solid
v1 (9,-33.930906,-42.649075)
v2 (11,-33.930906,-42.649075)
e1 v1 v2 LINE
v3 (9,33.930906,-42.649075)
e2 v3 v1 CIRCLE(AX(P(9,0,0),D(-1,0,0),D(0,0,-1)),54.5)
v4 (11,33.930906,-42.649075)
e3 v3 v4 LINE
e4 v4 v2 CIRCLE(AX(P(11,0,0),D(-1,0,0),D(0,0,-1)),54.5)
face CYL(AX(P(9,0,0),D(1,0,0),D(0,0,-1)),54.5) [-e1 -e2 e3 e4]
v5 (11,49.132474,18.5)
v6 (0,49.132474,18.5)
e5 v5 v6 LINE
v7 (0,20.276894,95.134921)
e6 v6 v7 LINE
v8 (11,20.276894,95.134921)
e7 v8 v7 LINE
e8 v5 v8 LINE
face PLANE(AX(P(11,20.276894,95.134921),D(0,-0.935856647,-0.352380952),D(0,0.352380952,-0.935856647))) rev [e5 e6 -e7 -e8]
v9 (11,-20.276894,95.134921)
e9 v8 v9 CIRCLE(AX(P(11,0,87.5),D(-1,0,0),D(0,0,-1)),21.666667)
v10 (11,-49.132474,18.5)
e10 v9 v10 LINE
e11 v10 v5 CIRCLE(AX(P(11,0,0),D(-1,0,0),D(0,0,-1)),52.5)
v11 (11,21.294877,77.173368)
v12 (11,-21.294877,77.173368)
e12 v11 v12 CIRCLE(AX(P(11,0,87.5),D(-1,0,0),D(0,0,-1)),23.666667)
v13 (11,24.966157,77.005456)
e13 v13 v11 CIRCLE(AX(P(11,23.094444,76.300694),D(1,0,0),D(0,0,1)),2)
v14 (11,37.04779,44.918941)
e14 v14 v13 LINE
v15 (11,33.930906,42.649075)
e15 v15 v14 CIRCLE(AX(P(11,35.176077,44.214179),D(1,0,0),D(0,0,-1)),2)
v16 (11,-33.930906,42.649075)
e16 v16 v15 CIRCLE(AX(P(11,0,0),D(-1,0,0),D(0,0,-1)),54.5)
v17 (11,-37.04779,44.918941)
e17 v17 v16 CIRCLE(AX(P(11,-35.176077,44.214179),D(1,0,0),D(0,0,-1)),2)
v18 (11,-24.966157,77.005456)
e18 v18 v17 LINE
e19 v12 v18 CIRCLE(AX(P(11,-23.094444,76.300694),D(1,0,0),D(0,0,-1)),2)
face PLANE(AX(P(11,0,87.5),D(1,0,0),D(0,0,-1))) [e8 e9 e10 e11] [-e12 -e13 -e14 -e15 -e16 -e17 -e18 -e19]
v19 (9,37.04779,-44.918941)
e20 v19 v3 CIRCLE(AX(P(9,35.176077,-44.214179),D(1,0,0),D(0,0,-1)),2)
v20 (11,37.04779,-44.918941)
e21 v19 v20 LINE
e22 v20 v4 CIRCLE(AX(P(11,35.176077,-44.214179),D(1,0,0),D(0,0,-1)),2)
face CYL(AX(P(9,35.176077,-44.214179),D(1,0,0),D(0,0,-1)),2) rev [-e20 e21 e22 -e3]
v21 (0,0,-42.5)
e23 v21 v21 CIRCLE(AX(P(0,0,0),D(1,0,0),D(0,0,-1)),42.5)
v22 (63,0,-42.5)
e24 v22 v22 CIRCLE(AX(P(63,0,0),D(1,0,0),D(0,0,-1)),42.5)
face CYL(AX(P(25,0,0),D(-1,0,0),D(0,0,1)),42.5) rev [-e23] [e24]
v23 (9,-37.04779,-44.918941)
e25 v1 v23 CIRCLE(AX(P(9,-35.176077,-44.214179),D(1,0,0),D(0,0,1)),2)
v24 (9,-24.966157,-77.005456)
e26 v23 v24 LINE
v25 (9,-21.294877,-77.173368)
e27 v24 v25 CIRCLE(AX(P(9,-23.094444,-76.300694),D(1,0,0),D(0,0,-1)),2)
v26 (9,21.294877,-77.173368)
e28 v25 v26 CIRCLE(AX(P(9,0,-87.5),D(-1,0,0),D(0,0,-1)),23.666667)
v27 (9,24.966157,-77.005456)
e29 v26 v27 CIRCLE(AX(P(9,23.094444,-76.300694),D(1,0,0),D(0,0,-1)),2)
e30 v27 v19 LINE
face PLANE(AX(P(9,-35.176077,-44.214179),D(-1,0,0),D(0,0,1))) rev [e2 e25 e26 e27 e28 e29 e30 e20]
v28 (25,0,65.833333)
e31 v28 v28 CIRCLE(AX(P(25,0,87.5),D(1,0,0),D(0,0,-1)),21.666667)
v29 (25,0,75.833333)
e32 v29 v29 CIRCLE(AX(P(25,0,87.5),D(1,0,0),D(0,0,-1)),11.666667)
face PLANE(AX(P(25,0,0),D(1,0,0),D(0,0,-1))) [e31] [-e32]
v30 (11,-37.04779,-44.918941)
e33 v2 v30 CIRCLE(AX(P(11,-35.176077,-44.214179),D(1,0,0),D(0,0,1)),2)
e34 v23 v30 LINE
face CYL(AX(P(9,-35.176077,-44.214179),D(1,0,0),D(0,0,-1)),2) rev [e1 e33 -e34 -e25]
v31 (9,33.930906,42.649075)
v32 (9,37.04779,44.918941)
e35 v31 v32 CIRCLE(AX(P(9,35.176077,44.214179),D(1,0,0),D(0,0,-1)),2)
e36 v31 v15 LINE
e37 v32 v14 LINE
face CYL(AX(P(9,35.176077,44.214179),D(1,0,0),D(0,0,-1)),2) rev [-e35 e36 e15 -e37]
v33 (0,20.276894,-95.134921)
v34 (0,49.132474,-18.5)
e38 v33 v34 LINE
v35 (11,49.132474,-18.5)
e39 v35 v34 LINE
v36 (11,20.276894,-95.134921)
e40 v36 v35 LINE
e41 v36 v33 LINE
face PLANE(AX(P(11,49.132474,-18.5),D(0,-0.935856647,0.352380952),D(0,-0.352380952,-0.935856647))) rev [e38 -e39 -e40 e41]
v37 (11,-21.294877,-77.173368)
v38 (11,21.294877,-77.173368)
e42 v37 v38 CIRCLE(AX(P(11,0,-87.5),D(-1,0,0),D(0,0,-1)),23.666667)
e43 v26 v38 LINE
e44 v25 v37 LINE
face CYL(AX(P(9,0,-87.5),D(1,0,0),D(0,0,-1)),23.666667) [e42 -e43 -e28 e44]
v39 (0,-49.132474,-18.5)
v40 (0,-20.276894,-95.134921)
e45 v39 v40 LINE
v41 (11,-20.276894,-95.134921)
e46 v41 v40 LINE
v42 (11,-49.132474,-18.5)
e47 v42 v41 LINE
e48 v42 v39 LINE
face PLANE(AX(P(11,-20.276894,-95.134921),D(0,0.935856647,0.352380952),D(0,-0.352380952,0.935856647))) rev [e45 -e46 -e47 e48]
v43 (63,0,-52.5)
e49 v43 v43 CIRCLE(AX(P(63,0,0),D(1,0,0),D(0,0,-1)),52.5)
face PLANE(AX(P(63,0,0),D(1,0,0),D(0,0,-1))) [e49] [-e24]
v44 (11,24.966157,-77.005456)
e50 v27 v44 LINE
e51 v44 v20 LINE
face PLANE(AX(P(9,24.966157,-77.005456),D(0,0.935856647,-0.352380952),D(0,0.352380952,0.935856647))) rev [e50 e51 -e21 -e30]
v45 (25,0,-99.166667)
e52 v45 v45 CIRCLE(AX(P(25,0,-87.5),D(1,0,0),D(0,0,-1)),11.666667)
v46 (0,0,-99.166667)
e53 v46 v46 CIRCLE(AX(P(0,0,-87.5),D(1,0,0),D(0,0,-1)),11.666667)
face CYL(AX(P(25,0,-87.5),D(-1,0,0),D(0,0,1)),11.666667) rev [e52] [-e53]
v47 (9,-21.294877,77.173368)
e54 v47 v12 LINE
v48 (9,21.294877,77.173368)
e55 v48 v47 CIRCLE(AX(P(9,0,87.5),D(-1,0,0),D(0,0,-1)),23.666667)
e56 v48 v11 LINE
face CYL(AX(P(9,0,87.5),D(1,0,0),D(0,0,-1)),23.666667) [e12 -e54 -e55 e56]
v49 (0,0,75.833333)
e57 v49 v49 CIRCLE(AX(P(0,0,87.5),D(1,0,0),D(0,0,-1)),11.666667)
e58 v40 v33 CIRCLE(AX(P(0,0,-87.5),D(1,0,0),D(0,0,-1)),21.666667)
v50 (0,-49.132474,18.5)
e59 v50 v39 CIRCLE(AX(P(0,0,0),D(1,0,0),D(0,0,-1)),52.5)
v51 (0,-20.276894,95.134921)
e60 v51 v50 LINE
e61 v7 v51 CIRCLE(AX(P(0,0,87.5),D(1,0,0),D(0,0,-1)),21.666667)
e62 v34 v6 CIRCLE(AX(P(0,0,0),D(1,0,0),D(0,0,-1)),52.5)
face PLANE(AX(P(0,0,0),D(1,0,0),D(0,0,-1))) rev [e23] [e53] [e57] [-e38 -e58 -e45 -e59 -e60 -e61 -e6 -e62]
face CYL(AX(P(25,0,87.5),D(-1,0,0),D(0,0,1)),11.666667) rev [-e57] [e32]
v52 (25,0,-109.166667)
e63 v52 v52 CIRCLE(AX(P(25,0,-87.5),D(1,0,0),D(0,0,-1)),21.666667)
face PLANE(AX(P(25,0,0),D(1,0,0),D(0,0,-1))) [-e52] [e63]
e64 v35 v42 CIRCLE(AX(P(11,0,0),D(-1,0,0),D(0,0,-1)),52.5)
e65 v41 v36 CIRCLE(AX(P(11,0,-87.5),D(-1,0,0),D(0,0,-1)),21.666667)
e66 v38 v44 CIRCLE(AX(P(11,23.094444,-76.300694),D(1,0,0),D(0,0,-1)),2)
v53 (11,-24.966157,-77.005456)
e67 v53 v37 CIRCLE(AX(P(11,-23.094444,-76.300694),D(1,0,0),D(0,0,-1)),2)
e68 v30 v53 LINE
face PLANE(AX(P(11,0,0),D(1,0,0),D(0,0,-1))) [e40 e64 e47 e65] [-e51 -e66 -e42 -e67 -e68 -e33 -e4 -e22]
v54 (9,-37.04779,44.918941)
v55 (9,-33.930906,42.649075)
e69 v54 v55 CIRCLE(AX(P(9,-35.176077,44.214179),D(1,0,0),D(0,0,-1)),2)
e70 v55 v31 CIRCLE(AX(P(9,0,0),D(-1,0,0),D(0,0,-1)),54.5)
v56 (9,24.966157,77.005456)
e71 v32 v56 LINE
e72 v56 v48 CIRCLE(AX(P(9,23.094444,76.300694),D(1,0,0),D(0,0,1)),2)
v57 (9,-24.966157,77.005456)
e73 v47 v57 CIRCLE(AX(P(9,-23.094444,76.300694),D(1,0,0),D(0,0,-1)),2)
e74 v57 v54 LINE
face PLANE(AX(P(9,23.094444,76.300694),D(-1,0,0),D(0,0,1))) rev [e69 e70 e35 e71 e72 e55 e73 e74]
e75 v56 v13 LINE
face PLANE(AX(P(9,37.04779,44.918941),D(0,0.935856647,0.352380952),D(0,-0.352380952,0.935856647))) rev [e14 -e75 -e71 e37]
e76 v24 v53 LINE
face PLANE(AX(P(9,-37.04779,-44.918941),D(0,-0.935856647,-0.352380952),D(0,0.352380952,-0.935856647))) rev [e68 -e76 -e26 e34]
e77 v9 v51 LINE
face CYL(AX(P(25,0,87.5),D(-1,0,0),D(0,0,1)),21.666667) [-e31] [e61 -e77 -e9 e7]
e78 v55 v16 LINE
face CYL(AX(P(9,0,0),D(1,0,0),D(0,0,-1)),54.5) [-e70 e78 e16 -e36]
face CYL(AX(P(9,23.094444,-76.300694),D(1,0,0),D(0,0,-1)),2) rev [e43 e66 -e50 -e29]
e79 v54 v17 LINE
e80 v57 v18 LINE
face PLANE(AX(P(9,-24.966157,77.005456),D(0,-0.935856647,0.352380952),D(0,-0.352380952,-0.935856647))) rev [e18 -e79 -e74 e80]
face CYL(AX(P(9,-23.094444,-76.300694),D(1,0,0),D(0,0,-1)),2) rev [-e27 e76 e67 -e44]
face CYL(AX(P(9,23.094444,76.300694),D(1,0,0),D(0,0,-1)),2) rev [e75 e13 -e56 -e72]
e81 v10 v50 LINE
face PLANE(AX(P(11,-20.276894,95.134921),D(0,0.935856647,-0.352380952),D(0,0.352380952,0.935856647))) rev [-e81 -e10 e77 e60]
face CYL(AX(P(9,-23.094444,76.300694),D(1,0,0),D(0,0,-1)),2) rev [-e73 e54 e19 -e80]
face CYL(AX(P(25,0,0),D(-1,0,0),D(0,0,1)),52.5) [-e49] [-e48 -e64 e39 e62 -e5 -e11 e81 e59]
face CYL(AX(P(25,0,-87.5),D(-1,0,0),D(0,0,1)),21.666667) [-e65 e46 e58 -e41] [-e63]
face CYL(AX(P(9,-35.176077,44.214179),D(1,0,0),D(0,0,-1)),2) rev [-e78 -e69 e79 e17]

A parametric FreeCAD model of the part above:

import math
import FreeCAD as App
import Part
import Sketcher
from FreeCAD import Vector

doc = App.newDocument("Part")
body = doc.addObject("PartDesign::Body", "Body")

sketch1 = body.newObject("Sketcher::SketchObject", "Sketch")
sketch1.AttachmentSupport = (doc.getObject("YZ_Plane"), [""])
sketch1.MapMode = "FlatFace"
sketch1.addGeometry(Part.Circle(Vector(0, 0, 0), Vector(0, 0, 1), 52), False)
sketch1.addGeometry(Part.Circle(Vector(0, 0, 0), Vector(0, 0, 1), 42), False)
sketch1.addConstraint(Sketcher.Constraint("Coincident", 0, 3, -1, 1))
sketch1.addConstraint(Sketcher.Constraint("Coincident", 1, 3, -1, 1))
sketch1.addConstraint(Sketcher.Constraint("Diameter", 0, 105.0))
sketch1.addConstraint(Sketcher.Constraint("Diameter", 1, 85.0))
pad1 = body.newObject("PartDesign::Pad", "Pad")
pad1.Profile = sketch1
pad1.Length = 25

sketch2 = body.newObject("Sketcher::SketchObject", "Sketch001")
sketch2.AttachmentSupport = (doc.getObject("YZ_Plane"), [""])
sketch2.MapMode = "FlatFace"
sketch2.AttachmentOffset = App.Placement(Vector(0, 0, 25), App.Rotation())
sketch2.addGeometry(Part.Circle(Vector(0, 0, 0), Vector(0, 0, 1), 52), False)
sketch2.addGeometry(Part.Circle(Vector(0, 0, 0), Vector(0, 0, 1), 42), False)
sketch2.addConstraint(Sketcher.Constraint("Coincident", 0, 3, -1, 1))
sketch2.addConstraint(Sketcher.Constraint("Coincident", 1, 3, -1, 1))
sketch2.addConstraint(Sketcher.Constraint("Diameter", 0, 105.0))
sketch2.addConstraint(Sketcher.Constraint("Diameter", 1, 85.0))
pad2 = body.newObject("PartDesign::Pad", "Pad001")
pad2.Profile = sketch2
pad2.Length = 38
body2 = doc.addObject("PartDesign::Body", "Body001")

sketch3 = body2.newObject("Sketcher::SketchObject", "Sketch002")
sketch3.AttachmentSupport = (doc.getObject("YZ_Plane001"), [""])
sketch3.MapMode = "FlatFace"
sketch3.addGeometry(Part.Circle(Vector(0, -88, 0), Vector(0, 0, 1), 22), False)
sketch3.addGeometry(Part.Circle(Vector(0, -88, 0), Vector(0, 0, 1), 12), False)
sketch3.addConstraint(Sketcher.Constraint("Coincident", 1, 3, 0, 3))
sketch3.addConstraint(Sketcher.Constraint("PointOnObject", 0, 3, -2))
sketch3.addConstraint(Sketcher.Constraint("DistanceY", 0, 3, -1, 1, 87.5))
sketch3.addConstraint(Sketcher.Constraint("Diameter", 0, 43.333333))
sketch3.addConstraint(Sketcher.Constraint("Diameter", 1, 23.333333))
pad3 = body2.newObject("PartDesign::Pad", "Pad002")
pad3.Profile = sketch3
pad3.Length = 25
body3 = doc.addObject("PartDesign::Body", "Body002")

sketch4 = body3.newObject("Sketcher::SketchObject", "Sketch003")
sketch4.AttachmentSupport = (doc.getObject("YZ_Plane002"), [""])
sketch4.MapMode = "FlatFace"
sketch4.addGeometry(Part.Circle(Vector(0, 88, 0), Vector(0, 0, 1), 22), False)
sketch4.addGeometry(Part.Circle(Vector(0, 88, 0), Vector(0, 0, 1), 12), False)
sketch4.addConstraint(Sketcher.Constraint("Coincident", 1, 3, 0, 3))
sketch4.addConstraint(Sketcher.Constraint("PointOnObject", 0, 3, -2))
sketch4.addConstraint(Sketcher.Constraint("DistanceY", -1, 1, 0, 3, 87.5))
sketch4.addConstraint(Sketcher.Constraint("Diameter", 0, 43.333333))
sketch4.addConstraint(Sketcher.Constraint("Diameter", 1, 23.333333))
pad4 = body3.newObject("PartDesign::Pad", "Pad003")
pad4.Profile = sketch4
pad4.Length = 25
body.AllowCompound = True
doc.recompute()

boolean = body.newObject("PartDesign::Boolean", "Boolean")
boolean.Type = "Fuse"
boolean.addObjects([body2])
doc.recompute()

boolean2 = body.newObject("PartDesign::Boolean", "Boolean001")
boolean2.Type = "Fuse"
boolean2.addObjects([body3])

sketch5 = body.newObject("Sketcher::SketchObject", "Sketch004")
sketch5.AttachmentSupport = (doc.getObject("YZ_Plane"), [""])
sketch5.MapMode = "FlatFace"
sketch5.addGeometry(Part.LineSegment(Vector(20, -95, 0), Vector(49, -18, 0)), False)
sketch5.addGeometry(Part.ArcOfCircle(Part.Circle(Vector(0, 0, 0), Vector(0, 0, 1), 52), math.radians(-159), math.radians(-21)), False)
sketch5.addGeometry(Part.LineSegment(Vector(-49, -18, 0), Vector(-20, -95, 0)), False)
sketch5.addGeometry(Part.ArcOfCircle(Part.Circle(Vector(0, -88, 0), Vector(0, 0, 1), 22), math.radians(-21), math.radians(201)), False)
sketch5.addGeometry(Part.LineSegment(Vector(-20, 95, 0), Vector(-49, 18, 0)), False)
sketch5.addGeometry(Part.ArcOfCircle(Part.Circle(Vector(0, 0, 0), Vector(0, 0, 1), 52), math.radians(21), math.radians(159)), False)
sketch5.addGeometry(Part.LineSegment(Vector(49, 18, 0), Vector(20, 95, 0)), False)
sketch5.addGeometry(Part.ArcOfCircle(Part.Circle(Vector(0, 88, 0), Vector(0, 0, 1), 22), math.radians(159), math.radians(381)), False)
sketch5.addConstraint(Sketcher.Constraint("Tangent", 0, 2, 1, 2))
sketch5.addConstraint(Sketcher.Constraint("Tangent", 1, 1, 2, 1))
sketch5.addConstraint(Sketcher.Constraint("Tangent", 2, 2, 3, 2))
sketch5.addConstraint(Sketcher.Constraint("Tangent", 3, 1, 0, 1))
sketch5.addConstraint(Sketcher.Constraint("Tangent", 4, 2, 5, 2))
sketch5.addConstraint(Sketcher.Constraint("Tangent", 5, 1, 6, 1))
sketch5.addConstraint(Sketcher.Constraint("Tangent", 6, 2, 7, 2))
sketch5.addConstraint(Sketcher.Constraint("Tangent", 7, 1, 4, 1))
sketch5.addConstraint(Sketcher.Constraint("Coincident", 1, 3, -1, 1))
sketch5.addConstraint(Sketcher.Constraint("Coincident", 5, 3, -1, 1))
sketch5.addConstraint(Sketcher.Constraint("Equal", 1, 5))
sketch5.addConstraint(Sketcher.Constraint("Equal", 3, 7))
sketch5.addConstraint(Sketcher.Constraint("Symmetric", 3, 3, 7, 3, -1, 1))
sketch5.addConstraint(Sketcher.Constraint("PointOnObject", 3, 3, -2))
sketch5.addConstraint(Sketcher.Constraint("Radius", 1, 52.5))
sketch5.addConstraint(Sketcher.Constraint("DistanceY", 3, 3, 7, 3, 175.0))
sketch5.addConstraint(Sketcher.Constraint("DistanceY", 3, 3, 0, 2, 69.0))
pad5 = body.newObject("PartDesign::Pad", "Pad004")
pad5.Profile = sketch5
pad5.Length = 11

sketch6 = body.newObject("Sketcher::SketchObject", "Sketch005")
sketch6.AttachmentSupport = (doc.getObject("YZ_Plane"), [""])
sketch6.MapMode = "FlatFace"
sketch6.AttachmentOffset = App.Placement(Vector(0, 0, 11), App.Rotation())
sketch6.addGeometry(Part.LineSegment(Vector(-25, 77, 0), Vector(-37, 44.9, 0)), False)
sketch6.addGeometry(Part.ArcOfCircle(Part.Circle(Vector(-35.2, 44.2, 0), Vector(0, 0, 1), 2), math.radians(159), math.radians(309)), False)
sketch6.addGeometry(Part.ArcOfCircle(Part.Circle(Vector(0, 0, 0), Vector(0, 0, 1), 54.5), math.radians(51), math.radians(129)), False)
sketch6.addGeometry(Part.ArcOfCircle(Part.Circle(Vector(35.2, 44.2, 0), Vector(0, 0, 1), 2), math.radians(-129), math.radians(21)), False)
sketch6.addGeometry(Part.LineSegment(Vector(37, 44.9, 0), Vector(25, 77, 0)), False)
sketch6.addGeometry(Part.ArcOfCircle(Part.Circle(Vector(23.1, 76.3, 0), Vector(0, 0, 1), 2), math.radians(21), math.radians(154)), False)
sketch6.addGeometry(Part.ArcOfCircle(Part.Circle(Vector(0, 87.5, 0), Vector(0, 0, 1), 23.7), math.radians(-154), math.radians(-26)), False)
sketch6.addGeometry(Part.ArcOfCircle(Part.Circle(Vector(-23.1, 76.3, 0), Vector(0, 0, 1), 2), math.radians(26), math.radians(159)), False)
sketch6.addGeometry(Part.LineSegment(Vector(25, -77, 0), Vector(37, -44.9, 0)), False)
sketch6.addGeometry(Part.ArcOfCircle(Part.Circle(Vector(35.2, -44.2, 0), Vector(0, 0, 1), 2), math.radians(-21), math.radians(129)), False)
sketch6.addGeometry(Part.ArcOfCircle(Part.Circle(Vector(0, 0, 0), Vector(0, 0, 1), 54.5), math.radians(-129), math.radians(-51)), False)
sketch6.addGeometry(Part.ArcOfCircle(Part.Circle(Vector(-35.2, -44.2, 0), Vector(0, 0, 1), 2), math.radians(51), math.radians(201)), False)
sketch6.addGeometry(Part.LineSegment(Vector(-37, -44.9, 0), Vector(-25, -77, 0)), False)
sketch6.addGeometry(Part.ArcOfCircle(Part.Circle(Vector(-23.1, -76.3, 0), Vector(0, 0, 1), 2), math.radians(-159), math.radians(-26)), False)
sketch6.addGeometry(Part.ArcOfCircle(Part.Circle(Vector(0, -87.5, 0), Vector(0, 0, 1), 23.7), math.radians(26), math.radians(154)), False)
sketch6.addGeometry(Part.ArcOfCircle(Part.Circle(Vector(23.1, -76.3, 0), Vector(0, 0, 1), 2), math.radians(-154), math.radians(-21)), False)
sketch6.addConstraint(Sketcher.Constraint("Tangent", 0, 2, 1, 1))
sketch6.addConstraint(Sketcher.Constraint("Tangent", 1, 2, 2, 2))
sketch6.addConstraint(Sketcher.Constraint("Tangent", 2, 1, 3, 1))
sketch6.addConstraint(Sketcher.Constraint("Tangent", 3, 2, 4, 1))
sketch6.addConstraint(Sketcher.Constraint("Tangent", 4, 2, 5, 1))
sketch6.addConstraint(Sketcher.Constraint("Tangent", 5, 2, 6, 2))
sketch6.addConstraint(Sketcher.Constraint("Tangent", 6, 1, 7, 1))
sketch6.addConstraint(Sketcher.Constraint("Tangent", 7, 2, 0, 1))
sketch6.addConstraint(Sketcher.Constraint("Tangent", 8, 2, 9, 1))
sketch6.addConstraint(Sketcher.Constraint("Tangent", 9, 2, 10, 2))
sketch6.addConstraint(Sketcher.Constraint("Tangent", 10, 1, 11, 1))
sketch6.addConstraint(Sketcher.Constraint("Tangent", 11, 2, 12, 1))
sketch6.addConstraint(Sketcher.Constraint("Tangent", 12, 2, 13, 1))
sketch6.addConstraint(Sketcher.Constraint("Tangent", 13, 2, 14, 2))
sketch6.addConstraint(Sketcher.Constraint("Tangent", 14, 1, 15, 1))
sketch6.addConstraint(Sketcher.Constraint("Tangent", 15, 2, 8, 1))
sketch6.addConstraint(Sketcher.Constraint("Coincident", 2, 3, -1, 1))
sketch6.addConstraint(Sketcher.Constraint("Coincident", 10, 3, -1, 1))
sketch6.addConstraint(Sketcher.Constraint("Equal", 1, 3))
sketch6.addConstraint(Sketcher.Constraint("Equal", 3, 5))
sketch6.addConstraint(Sketcher.Constraint("Equal", 5, 7))
sketch6.addConstraint(Sketcher.Constraint("Equal", 7, 9))
sketch6.addConstraint(Sketcher.Constraint("Equal", 2, 10))
sketch6.addConstraint(Sketcher.Constraint("Equal", 9, 11))
sketch6.addConstraint(Sketcher.Constraint("Equal", 11, 13))
sketch6.addConstraint(Sketcher.Constraint("Equal", 6, 14))
sketch6.addConstraint(Sketcher.Constraint("Equal", 13, 15))
sketch6.addConstraint(Sketcher.Constraint("Symmetric", 5, 3, 13, 3, -1, 1))
sketch6.addConstraint(Sketcher.Constraint("Symmetric", 7, 3, 15, 3, -1, 1))
sketch6.addConstraint(Sketcher.Constraint("Symmetric", 5, 3, 7, 3, -2))
sketch6.addConstraint(Sketcher.Constraint("Parallel", 0, 8))
sketch6.addConstraint(Sketcher.Constraint("Parallel", 4, 12))
sketch6.addConstraint(Sketcher.Constraint("Horizontal", 1, 3, 3, 3))
sketch6.addConstraint(Sketcher.Constraint("Radius", 1, 2.0))
sketch6.addConstraint(Sketcher.Constraint("Radius", 2, 54.5))
sketch6.addConstraint(Sketcher.Constraint("DistanceY", -1, 1, 6, 3, 87.5))
sketch6.addConstraint(Sketcher.Constraint("Radius", 6, 23.666667))
sketch6.addConstraint(Sketcher.Constraint("DistanceX", 5, 2, 3, 3, 13.8812))
sketch6.addConstraint(Sketcher.Constraint("DistanceY", -1, 1, 1, 3, 44.214179))
pocket1 = body.newObject("PartDesign::Pocket", "Pocket")
pocket1.Profile = sketch6
pocket1.Length = 2

doc.recompute()
